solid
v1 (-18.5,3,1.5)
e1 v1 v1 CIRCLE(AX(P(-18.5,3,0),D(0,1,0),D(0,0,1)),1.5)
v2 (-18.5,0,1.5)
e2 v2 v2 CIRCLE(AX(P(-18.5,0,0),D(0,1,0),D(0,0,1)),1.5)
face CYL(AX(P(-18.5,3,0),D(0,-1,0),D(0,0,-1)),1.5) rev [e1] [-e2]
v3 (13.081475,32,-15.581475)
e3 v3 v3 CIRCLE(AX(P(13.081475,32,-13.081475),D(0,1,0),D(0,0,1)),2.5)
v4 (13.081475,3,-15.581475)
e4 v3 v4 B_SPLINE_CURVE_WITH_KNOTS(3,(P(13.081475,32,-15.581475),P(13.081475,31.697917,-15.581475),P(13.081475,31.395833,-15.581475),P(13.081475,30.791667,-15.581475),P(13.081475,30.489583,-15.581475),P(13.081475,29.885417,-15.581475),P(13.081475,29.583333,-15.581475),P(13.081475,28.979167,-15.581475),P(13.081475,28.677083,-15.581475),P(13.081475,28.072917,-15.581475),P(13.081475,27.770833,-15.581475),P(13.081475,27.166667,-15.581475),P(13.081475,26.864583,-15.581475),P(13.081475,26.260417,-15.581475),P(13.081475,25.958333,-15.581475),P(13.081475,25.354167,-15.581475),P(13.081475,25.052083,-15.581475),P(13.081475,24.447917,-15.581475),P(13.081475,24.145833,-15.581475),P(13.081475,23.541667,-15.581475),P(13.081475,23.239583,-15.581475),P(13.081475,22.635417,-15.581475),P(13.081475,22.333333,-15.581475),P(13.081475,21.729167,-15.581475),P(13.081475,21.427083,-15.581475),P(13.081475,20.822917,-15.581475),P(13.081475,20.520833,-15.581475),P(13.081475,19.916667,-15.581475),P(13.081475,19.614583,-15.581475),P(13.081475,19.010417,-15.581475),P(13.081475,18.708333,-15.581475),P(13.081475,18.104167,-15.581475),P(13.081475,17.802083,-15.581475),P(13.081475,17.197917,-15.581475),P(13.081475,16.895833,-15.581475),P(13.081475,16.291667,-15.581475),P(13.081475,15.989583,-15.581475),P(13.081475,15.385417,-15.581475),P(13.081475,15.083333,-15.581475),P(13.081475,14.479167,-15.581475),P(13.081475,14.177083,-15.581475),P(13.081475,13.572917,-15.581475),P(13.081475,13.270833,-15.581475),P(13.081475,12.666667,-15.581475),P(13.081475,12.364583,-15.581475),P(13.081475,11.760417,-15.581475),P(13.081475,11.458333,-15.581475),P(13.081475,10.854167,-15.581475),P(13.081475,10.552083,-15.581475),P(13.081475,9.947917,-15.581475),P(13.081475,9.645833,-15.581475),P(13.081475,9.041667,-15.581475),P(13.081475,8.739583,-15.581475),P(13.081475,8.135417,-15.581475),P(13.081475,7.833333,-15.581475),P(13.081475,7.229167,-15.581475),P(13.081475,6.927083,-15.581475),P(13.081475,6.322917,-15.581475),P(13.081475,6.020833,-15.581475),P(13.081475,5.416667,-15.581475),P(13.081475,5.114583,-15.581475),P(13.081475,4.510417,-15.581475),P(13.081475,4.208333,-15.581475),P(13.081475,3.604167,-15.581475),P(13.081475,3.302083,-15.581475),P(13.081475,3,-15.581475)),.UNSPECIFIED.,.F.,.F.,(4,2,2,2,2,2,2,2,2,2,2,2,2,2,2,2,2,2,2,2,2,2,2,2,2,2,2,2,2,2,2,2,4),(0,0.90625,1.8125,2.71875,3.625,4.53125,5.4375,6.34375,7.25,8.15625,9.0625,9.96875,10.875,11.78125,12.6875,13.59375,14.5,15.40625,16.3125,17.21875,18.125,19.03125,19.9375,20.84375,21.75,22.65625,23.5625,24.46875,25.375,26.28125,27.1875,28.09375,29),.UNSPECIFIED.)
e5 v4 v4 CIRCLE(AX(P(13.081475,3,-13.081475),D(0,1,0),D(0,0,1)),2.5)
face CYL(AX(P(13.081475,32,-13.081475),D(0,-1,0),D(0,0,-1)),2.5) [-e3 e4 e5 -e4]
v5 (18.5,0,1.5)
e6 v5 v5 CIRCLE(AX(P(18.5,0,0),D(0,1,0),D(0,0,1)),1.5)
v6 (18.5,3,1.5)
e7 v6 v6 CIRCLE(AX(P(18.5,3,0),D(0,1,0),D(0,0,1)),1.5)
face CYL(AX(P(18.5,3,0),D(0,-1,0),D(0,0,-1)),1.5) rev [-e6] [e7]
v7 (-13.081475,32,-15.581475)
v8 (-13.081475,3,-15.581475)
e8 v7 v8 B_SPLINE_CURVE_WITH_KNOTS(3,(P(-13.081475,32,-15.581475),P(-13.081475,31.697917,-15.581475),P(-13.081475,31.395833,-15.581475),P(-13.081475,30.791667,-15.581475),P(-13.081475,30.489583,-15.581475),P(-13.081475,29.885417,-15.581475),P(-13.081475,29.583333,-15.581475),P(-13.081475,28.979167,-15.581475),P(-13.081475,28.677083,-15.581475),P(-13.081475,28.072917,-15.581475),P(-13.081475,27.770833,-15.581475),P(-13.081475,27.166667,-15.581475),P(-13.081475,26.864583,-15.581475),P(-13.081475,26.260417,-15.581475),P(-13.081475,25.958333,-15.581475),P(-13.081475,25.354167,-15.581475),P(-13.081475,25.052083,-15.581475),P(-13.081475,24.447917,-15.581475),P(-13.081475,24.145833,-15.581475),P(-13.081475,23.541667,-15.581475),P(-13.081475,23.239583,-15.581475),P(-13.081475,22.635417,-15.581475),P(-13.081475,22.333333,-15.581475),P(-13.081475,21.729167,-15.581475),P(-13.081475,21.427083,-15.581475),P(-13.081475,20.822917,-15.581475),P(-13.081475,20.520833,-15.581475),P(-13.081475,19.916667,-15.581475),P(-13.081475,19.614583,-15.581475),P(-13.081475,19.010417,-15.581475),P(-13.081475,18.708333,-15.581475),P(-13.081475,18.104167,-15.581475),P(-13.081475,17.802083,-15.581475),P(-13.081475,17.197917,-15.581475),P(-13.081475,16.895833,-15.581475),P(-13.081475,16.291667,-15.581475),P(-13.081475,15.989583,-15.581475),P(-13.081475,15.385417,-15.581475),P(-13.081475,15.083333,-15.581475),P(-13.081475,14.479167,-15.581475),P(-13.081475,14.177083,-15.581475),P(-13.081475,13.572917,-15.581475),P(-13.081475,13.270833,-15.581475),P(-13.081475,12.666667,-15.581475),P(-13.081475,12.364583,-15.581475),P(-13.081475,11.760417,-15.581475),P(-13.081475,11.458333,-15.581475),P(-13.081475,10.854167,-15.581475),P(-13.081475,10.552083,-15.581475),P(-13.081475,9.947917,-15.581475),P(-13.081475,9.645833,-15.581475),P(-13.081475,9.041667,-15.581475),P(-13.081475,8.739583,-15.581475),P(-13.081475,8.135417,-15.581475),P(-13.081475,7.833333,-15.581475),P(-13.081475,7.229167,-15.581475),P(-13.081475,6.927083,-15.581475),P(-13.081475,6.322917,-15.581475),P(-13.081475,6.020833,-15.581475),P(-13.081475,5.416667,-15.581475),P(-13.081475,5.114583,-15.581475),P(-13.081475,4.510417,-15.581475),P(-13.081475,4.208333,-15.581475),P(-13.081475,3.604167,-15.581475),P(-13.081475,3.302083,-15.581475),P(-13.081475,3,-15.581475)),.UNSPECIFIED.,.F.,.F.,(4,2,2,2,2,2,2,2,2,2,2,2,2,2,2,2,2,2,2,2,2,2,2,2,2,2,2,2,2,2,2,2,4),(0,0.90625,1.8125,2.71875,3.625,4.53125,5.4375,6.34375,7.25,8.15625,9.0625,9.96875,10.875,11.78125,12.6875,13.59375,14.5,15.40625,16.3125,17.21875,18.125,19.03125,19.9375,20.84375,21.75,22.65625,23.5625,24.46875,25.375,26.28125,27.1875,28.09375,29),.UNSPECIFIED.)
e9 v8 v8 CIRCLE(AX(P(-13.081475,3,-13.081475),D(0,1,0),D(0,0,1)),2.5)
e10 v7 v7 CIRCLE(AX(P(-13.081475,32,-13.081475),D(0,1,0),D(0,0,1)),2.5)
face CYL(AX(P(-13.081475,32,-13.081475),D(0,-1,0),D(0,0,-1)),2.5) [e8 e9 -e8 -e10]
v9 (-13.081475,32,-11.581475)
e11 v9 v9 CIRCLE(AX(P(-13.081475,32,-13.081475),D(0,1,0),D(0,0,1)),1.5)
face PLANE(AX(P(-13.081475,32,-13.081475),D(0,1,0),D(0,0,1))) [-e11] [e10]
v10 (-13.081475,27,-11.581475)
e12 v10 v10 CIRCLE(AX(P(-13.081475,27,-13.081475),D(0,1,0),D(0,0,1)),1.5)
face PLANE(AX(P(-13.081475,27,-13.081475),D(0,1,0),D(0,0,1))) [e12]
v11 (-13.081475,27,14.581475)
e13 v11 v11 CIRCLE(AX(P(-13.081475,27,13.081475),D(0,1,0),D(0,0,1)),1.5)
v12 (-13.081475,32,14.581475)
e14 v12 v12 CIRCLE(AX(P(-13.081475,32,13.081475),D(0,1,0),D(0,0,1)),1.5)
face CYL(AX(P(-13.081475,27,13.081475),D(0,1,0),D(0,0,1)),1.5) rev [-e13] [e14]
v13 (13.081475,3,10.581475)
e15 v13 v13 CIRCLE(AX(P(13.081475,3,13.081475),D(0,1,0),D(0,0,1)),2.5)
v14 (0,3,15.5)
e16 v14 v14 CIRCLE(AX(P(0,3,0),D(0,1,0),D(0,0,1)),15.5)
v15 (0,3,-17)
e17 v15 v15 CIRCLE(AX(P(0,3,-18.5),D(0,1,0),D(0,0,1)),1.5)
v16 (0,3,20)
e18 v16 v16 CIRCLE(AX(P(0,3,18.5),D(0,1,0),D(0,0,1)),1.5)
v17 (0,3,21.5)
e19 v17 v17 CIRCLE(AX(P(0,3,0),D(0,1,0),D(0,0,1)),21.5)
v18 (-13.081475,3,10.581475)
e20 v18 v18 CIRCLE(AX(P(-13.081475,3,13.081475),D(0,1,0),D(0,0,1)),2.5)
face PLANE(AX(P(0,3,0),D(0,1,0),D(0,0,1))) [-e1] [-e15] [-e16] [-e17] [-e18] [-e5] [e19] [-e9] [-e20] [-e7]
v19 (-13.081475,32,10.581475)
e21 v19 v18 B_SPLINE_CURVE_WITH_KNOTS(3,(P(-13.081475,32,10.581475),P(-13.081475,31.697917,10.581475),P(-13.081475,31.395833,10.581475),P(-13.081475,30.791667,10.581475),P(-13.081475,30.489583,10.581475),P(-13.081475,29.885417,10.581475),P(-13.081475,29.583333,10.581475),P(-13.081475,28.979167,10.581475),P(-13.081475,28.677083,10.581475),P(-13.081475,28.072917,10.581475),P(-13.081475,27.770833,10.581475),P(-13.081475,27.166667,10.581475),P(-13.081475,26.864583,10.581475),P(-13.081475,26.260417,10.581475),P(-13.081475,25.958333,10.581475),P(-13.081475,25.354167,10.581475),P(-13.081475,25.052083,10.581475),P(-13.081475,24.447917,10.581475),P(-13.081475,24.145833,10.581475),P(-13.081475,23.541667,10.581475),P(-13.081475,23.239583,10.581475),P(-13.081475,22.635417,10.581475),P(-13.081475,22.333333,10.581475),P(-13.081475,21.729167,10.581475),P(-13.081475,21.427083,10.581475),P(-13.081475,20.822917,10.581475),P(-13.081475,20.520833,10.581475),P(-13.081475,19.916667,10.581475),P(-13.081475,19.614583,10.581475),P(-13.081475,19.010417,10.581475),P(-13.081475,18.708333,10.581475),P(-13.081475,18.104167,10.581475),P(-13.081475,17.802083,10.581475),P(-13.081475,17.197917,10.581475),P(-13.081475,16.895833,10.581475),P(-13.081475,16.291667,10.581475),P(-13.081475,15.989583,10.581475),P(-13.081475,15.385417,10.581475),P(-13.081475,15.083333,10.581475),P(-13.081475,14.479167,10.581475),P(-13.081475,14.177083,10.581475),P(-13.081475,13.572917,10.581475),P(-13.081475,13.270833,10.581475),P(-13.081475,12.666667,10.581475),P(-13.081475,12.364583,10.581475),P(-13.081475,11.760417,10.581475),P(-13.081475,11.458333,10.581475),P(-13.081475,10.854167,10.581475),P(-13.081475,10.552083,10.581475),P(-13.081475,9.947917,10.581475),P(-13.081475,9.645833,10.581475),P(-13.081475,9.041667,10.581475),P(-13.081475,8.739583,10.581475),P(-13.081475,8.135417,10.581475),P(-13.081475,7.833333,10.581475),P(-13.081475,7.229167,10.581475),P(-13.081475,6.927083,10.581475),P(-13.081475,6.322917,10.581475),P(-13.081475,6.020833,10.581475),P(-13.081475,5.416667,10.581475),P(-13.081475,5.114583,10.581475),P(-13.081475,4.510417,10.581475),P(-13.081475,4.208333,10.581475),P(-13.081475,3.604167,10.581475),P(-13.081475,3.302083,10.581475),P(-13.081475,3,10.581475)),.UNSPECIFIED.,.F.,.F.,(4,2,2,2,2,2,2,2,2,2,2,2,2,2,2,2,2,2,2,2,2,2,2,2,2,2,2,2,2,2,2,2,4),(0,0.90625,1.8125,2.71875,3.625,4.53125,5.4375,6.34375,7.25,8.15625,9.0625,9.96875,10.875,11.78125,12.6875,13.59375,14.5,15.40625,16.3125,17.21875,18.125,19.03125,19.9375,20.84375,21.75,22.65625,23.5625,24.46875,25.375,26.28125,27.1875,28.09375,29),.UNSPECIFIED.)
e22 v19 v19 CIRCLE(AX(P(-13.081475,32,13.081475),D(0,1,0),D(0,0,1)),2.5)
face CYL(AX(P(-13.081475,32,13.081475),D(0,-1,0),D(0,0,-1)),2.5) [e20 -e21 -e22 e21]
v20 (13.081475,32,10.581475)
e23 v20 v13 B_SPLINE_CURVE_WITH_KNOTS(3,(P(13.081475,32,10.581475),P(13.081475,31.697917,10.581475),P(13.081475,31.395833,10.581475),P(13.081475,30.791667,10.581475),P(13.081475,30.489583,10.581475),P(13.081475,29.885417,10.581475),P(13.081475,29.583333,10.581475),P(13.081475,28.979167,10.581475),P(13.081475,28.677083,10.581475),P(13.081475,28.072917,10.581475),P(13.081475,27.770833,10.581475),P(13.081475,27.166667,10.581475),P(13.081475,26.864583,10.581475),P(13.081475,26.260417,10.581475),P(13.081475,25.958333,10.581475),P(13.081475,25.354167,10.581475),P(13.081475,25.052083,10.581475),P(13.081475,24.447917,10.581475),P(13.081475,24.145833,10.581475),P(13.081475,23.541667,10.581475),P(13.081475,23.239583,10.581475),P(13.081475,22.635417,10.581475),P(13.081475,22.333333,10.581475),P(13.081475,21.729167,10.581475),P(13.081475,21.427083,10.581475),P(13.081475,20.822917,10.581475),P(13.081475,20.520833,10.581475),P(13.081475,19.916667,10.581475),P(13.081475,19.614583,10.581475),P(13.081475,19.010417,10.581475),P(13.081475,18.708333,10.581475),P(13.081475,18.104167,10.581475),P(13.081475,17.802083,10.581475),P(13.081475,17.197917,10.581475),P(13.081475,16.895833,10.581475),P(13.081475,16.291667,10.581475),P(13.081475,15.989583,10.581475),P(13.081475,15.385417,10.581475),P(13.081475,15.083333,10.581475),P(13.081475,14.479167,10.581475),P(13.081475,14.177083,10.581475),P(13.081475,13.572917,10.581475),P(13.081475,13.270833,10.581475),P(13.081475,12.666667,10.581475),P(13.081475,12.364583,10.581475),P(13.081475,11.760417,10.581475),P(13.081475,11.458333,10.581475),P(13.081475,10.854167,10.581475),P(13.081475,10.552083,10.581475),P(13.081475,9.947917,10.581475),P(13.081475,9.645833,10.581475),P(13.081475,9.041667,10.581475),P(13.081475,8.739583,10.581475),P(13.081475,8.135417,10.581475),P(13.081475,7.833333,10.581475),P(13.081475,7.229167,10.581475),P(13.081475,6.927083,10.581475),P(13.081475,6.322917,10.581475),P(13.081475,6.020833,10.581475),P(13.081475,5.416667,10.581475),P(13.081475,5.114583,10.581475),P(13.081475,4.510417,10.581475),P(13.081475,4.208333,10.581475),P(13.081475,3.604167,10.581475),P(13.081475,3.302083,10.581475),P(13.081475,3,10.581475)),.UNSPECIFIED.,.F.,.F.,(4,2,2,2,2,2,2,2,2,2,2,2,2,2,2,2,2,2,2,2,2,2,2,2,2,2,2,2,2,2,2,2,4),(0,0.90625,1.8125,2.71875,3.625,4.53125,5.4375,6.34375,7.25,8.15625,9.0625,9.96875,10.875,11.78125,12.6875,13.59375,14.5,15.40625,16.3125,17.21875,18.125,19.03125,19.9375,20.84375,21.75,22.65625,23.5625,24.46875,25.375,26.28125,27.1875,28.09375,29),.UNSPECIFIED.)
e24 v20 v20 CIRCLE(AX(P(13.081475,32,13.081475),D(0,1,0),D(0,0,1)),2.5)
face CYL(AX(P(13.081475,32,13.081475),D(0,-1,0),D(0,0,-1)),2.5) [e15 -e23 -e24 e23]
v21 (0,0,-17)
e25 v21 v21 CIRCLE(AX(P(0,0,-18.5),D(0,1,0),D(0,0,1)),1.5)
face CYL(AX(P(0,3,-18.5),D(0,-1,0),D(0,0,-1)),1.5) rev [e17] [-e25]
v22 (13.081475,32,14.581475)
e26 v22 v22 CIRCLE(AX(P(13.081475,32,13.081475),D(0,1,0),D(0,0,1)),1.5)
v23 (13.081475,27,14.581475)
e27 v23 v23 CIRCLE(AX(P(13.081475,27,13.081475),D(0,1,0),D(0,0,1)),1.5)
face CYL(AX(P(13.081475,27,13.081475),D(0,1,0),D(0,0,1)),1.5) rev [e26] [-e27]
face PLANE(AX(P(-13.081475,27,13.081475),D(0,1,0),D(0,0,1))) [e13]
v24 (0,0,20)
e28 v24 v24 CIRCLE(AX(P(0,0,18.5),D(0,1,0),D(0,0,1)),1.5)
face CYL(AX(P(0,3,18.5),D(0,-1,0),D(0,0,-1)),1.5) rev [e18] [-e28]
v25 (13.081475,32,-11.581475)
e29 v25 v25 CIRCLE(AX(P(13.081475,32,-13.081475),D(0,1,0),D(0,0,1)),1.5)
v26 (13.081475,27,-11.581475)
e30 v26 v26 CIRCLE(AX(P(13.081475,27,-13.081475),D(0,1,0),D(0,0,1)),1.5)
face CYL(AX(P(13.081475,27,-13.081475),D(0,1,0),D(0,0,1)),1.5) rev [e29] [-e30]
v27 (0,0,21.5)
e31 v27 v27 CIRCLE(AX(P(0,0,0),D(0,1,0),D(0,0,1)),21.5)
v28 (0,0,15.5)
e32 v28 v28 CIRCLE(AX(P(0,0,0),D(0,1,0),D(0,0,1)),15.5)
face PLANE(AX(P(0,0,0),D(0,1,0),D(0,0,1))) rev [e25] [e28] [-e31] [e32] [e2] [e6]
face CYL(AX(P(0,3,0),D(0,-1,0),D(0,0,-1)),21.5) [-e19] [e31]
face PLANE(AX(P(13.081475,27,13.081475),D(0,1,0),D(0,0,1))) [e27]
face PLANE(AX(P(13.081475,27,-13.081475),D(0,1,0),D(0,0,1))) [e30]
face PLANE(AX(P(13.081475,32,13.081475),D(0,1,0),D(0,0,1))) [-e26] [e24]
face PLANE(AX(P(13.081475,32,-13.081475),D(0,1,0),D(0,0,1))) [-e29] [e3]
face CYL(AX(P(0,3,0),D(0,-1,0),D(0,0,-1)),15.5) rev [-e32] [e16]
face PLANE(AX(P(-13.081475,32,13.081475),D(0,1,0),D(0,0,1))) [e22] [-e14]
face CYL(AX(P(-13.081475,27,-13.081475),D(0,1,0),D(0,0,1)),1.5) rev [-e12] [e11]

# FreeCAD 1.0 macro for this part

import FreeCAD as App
import Part
import Sketcher

doc = App.newDocument("Part")
body = doc.addObject("PartDesign::Body", "Body")

# Sketch on XZ plane
sketch1 = body.newObject("Sketcher::SketchObject", "Sketch")
sketch1.AttachmentSupport = (doc.getObject("XZ_Plane"), [""])
sketch1.MapMode = "FlatFace"
sketch1.addGeometry(Part.Circle(App.Vector(0, 0, 0), App.Vector(0, 0, 1), 21.5), False)
sketch1.addGeometry(Part.Circle(App.Vector(0, -18.5, 0), App.Vector(0, 0, 1), 1.5), False)
sketch1.addGeometry(Part.Circle(App.Vector(-18.5, 0, 0), App.Vector(0, 0, 1), 1.5), False)
sketch1.addGeometry(Part.Circle(App.Vector(18.5, 0, 0), App.Vector(0, 0, 1), 1.5), False)
sketch1.addGeometry(Part.Circle(App.Vector(0, 0, 0), App.Vector(0, 0, 1), 15.5), False)
sketch1.addGeometry(Part.Circle(App.Vector(0, 18.5, 0), App.Vector(0, 0, 1), 1.5), False)
sketch1.addConstraint(Sketcher.Constraint("Coincident", 0, 3, -1, 1))
sketch1.addConstraint(Sketcher.Constraint("Coincident", 4, 3, -1, 1))
sketch1.addConstraint(Sketcher.Constraint("Equal", 1, 2))
sketch1.addConstraint(Sketcher.Constraint("Equal", 2, 3))
sketch1.addConstraint(Sketcher.Constraint("Equal", 3, 5))
sketch1.addConstraint(Sketcher.Constraint("Symmetric", 2, 3, 3, 3, -1, 1))
sketch1.addConstraint(Sketcher.Constraint("Symmetric", 1, 3, 5, 3, -1, 1))
sketch1.addConstraint(Sketcher.Constraint("PointOnObject", 1, 3, -2))
sketch1.addConstraint(Sketcher.Constraint("PointOnObject", 2, 3, -1))
sketch1.addConstraint(Sketcher.Constraint("Diameter", 0, 43.0))
sketch1.addConstraint(Sketcher.Constraint("Diameter", 1, 3.0))
sketch1.addConstraint(Sketcher.Constraint("Diameter", 4, 31.0))
sketch1.addConstraint(Sketcher.Constraint("DistanceX", 2, 3, 3, 3, 37.0))
sketch1.addConstraint(Sketcher.Constraint("DistanceY", 1, 3, 5, 3, 37.0))
pad1 = body.newObject("PartDesign::Pad", "Pad")
pad1.Profile = sketch1
pad1.Length = 3
pad1.Reversed = True

# Sketch on XZ plane
sketch2 = body.newObject("Sketcher::SketchObject", "Sketch001")
sketch2.AttachmentSupport = (doc.getObject("XZ_Plane"), [""])
sketch2.MapMode = "FlatFace"
sketch2.AttachmentOffset = App.Placement(App.Vector(0, 0, -3), App.Rotation())
sketch2.addGeometry(Part.Circle(App.Vector(-13.081475, -13.081475, 0), App.Vector(0, 0, 1), 2.5), False)
sketch2.addGeometry(Part.Circle(App.Vector(13.081475, -13.081475, 0), App.Vector(0, 0, 1), 2.5), False)
sketch2.addGeometry(Part.Circle(App.Vector(13.081475, 13.081475, 0), App.Vector(0, 0, 1), 2.5), False)
sketch2.addGeometry(Part.Circle(App.Vector(-13.081475, 13.081475, 0), App.Vector(0, 0, 1), 2.5), False)
sketch2.addConstraint(Sketcher.Constraint("Equal", 0, 1))
sketch2.addConstraint(Sketcher.Constraint("Equal", 1, 2))
sketch2.addConstraint(Sketcher.Constraint("Equal", 2, 3))
sketch2.addConstraint(Sketcher.Constraint("Symmetric", 0, 3, 2, 3, -1, 1))
sketch2.addConstraint(Sketcher.Constraint("Symmetric", 1, 3, 3, 3, -1, 1))
sketch2.addConstraint(Sketcher.Constraint("Symmetric", 0, 3, 1, 3, -2))
sketch2.addConstraint(Sketcher.Constraint("Diameter", 0, 5.0))
sketch2.addConstraint(Sketcher.Constraint("DistanceX", 0, 3, 1, 3, 26.162951))
sketch2.addConstraint(Sketcher.Constraint("DistanceY", 1, 3, 2, 3, 26.162951))
pad2 = body.newObject("PartDesign::Pad", "Pad001")
pad2.Profile = sketch2
pad2.Length = 29
pad2.Reversed = True

# Sketch on XZ plane
sketch3 = body.newObject("Sketcher::SketchObject", "Sketch002")
sketch3.AttachmentSupport = (doc.getObject("XZ_Plane"), [""])
sketch3.MapMode = "FlatFace"
sketch3.AttachmentOffset = App.Placement(App.Vector(0, 0, -32), App.Rotation())
sketch3.addGeometry(Part.Circle(App.Vector(-13.081475, -13.081475, 0), App.Vector(0, 0, 1), 1.5), False)
sketch3.addGeometry(Part.Circle(App.Vector(13.081475, -13.081475, 0), App.Vector(0, 0, 1), 1.5), False)
sketch3.addGeometry(Part.Circle(App.Vector(13.081475, 13.081475, 0), App.Vector(0, 0, 1), 1.5), False)
sketch3.addGeometry(Part.Circle(App.Vector(-13.081475, 13.081475, 0), App.Vector(0, 0, 1), 1.5), False)
sketch3.addConstraint(Sketcher.Constraint("Equal", 0, 1))
sketch3.addConstraint(Sketcher.Constraint("Equal", 1, 2))
sketch3.addConstraint(Sketcher.Constraint("Equal", 2, 3))
sketch3.addConstraint(Sketcher.Constraint("Symmetric", 0, 3, 2, 3, -1, 1))
sketch3.addConstraint(Sketcher.Constraint("Symmetric", 1, 3, 3, 3, -1, 1))
sketch3.addConstraint(Sketcher.Constraint("Symmetric", 0, 3, 1, 3, -2))
sketch3.addConstraint(Sketcher.Constraint("Diameter", 0, 3.0))
sketch3.addConstraint(Sketcher.Constraint("DistanceX", 0, 3, 1, 3, 26.162951))
sketch3.addConstraint(Sketcher.Constraint("DistanceY", 1, 3, 2, 3, 26.162951))
pocket1 = body.newObject("PartDesign::Pocket", "Pocket")
pocket1.Profile = sketch3
pocket1.Length = 5
pocket1.Reversed = True

doc.recompute()
